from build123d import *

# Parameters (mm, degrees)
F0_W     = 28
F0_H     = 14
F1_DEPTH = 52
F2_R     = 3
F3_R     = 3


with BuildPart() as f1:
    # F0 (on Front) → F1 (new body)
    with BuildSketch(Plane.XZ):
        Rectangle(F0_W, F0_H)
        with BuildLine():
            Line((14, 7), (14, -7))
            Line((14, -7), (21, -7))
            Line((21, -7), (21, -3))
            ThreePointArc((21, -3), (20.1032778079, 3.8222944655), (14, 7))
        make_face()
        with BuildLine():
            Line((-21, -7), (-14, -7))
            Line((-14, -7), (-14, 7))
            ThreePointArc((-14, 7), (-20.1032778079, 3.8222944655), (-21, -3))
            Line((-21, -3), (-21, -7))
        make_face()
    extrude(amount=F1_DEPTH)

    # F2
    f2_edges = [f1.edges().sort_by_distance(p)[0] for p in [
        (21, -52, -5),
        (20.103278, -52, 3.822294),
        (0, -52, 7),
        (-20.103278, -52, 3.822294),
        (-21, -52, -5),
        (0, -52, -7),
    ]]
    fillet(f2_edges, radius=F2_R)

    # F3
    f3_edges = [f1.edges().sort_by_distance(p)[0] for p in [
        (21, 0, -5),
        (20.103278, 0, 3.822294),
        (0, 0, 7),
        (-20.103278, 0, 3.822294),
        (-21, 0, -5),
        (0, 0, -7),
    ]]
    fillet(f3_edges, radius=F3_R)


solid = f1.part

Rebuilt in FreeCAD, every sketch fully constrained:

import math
import FreeCAD as App
import Part
import Sketcher
Q = App.Units.Quantity


def edges_at(feature, points):
    """Names of the edges that pass closest to the given points."""
    edges = feature.Shape.Edges
    near = lambda p: min(range(len(edges)), key=lambda i: edges[i].distToShape(Part.Vertex(*p))[0])
    return sorted({f"Edge{near(p) + 1}" for p in points})

doc = App.newDocument("Part")
body = doc.addObject("PartDesign::Body", "Body")

sketch1 = body.newObject("Sketcher::SketchObject", "Sketch")
sketch1.AttachmentSupport = (doc.getObject("XZ_Plane"), [""])
sketch1.MapMode = "FlatFace"
sketch1.addGeometry([
    Part.LineSegment(App.Vector(21, -7, 0), App.Vector(21, -3, 0)),
    Part.ArcOfCircle(Part.Circle(App.Vector(14, -0.5, 0), App.Vector(0, 0, 1), 7.5), math.radians(-20), math.radians(90)),
    Part.LineSegment(App.Vector(14, 7, 0), App.Vector(-14, 7, 0)),
    Part.ArcOfCircle(Part.Circle(App.Vector(-14, -0.5, 0), App.Vector(0, 0, 1), 7.5), math.radians(90), math.radians(200)),
    Part.LineSegment(App.Vector(-21, -3, 0), App.Vector(-21, -7, 0)),
    Part.LineSegment(App.Vector(-21, -7, 0), App.Vector(21, -7, 0)),
], False)
sketch1.addConstraint([
    Sketcher.Constraint("Coincident", 0, 2, 1, 1),
    Sketcher.Constraint("Tangent", 1, 2, 2, 1),
    Sketcher.Constraint("Tangent", 2, 2, 3, 1),
    Sketcher.Constraint("Coincident", 3, 2, 4, 1),
    Sketcher.Constraint("Coincident", 4, 2, 5, 1),
    Sketcher.Constraint("Coincident", 5, 2, 0, 1),
    Sketcher.Constraint("Vertical", 0),
    Sketcher.Constraint("Horizontal", 2),
    Sketcher.Constraint("Vertical", 4),
    Sketcher.Constraint("Horizontal", 5),
    Sketcher.Constraint("Equal", 1, 3),
    Sketcher.Constraint("Symmetric", 0, 2, 3, 2, -2),
    Sketcher.Constraint("DistanceX", 2, 2, 2, 1, Q("28 mm")),
    Sketcher.Constraint("DistanceX", 5, 1, 5, 2, Q("42 mm")),
    Sketcher.Constraint("DistanceY", 0, 1, 0, 2, Q("4 mm")),
    Sketcher.Constraint("Radius", 1, Q("7.45 mm")),
    Sketcher.Constraint("DistanceY", 0, 2, -1, 1, Q("3 mm")),
])
pad1 = body.newObject("PartDesign::Pad", "Pad")
pad1.Profile = sketch1
pad1.Length = 52
doc.recompute()

fillet = body.newObject("PartDesign::Fillet", "Fillet")
fillet.Base = (pad1, edges_at(pad1, [
    (21, -52, -5),
    (20.103, -52, 3.822),
    (0, -52, 7),
    (-20.103, -52, 3.822),
    (-21, -52, -5),
    (0, -52, -7),
]))
fillet.Radius = 3
doc.recompute()

fillet2 = body.newObject("PartDesign::Fillet", "Fillet001")
fillet2.Base = (fillet, edges_at(fillet, [
    (21, 0, -5),
    (20.103, 0, 3.822),
    (0, 0, 7),
    (-20.103, 0, 3.822),
    (-21, 0, -5),
    (0, 0, -7),
]))
fillet2.Radius = 3

doc.recompute()
